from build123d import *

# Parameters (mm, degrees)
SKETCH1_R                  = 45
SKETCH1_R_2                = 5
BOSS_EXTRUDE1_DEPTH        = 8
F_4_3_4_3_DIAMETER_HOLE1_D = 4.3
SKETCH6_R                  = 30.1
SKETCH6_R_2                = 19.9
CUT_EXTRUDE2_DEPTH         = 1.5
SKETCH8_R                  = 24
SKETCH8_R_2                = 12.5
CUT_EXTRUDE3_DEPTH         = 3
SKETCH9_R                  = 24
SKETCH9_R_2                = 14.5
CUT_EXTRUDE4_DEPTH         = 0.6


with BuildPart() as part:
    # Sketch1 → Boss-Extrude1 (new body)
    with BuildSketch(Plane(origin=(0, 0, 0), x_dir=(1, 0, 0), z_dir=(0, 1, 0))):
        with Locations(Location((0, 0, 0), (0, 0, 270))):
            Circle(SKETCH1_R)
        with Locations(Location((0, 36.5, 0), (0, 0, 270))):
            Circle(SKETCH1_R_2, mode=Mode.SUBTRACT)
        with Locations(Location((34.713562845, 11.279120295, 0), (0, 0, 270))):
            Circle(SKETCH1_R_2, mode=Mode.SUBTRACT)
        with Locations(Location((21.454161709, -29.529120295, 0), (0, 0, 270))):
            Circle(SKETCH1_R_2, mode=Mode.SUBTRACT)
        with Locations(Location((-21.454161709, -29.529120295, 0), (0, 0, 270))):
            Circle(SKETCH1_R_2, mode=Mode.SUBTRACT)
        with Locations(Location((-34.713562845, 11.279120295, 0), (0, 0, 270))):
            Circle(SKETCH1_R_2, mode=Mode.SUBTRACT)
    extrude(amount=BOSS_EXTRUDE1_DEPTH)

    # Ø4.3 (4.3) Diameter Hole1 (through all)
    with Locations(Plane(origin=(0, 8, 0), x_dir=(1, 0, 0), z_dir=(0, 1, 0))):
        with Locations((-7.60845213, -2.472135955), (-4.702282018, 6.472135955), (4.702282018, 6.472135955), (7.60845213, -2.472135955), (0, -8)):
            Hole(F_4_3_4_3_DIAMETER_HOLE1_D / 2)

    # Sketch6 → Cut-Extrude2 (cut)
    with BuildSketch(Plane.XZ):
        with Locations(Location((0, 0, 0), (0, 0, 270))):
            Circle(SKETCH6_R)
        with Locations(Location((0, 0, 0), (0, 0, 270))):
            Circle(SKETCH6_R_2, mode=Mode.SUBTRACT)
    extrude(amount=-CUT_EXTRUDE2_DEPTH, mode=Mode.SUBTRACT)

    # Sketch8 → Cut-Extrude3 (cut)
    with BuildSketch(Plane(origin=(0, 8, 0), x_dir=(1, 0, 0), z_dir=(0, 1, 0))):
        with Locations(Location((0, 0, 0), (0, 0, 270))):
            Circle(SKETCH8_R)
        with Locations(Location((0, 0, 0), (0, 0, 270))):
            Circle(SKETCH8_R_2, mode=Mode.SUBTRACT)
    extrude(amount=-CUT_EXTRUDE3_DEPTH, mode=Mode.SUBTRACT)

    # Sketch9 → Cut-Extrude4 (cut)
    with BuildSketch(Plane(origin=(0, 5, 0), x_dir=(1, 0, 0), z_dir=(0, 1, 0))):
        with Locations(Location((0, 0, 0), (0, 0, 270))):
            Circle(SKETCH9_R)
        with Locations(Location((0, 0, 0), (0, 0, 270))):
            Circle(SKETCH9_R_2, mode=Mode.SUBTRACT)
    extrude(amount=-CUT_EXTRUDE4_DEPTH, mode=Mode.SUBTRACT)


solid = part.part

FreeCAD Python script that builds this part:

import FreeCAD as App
import Part
import Sketcher
Q = App.Units.Quantity

doc = App.newDocument("Part")
body = doc.addObject("PartDesign::Body", "Body")

sketch1 = doc.addObject("Sketcher::SketchObject", "Sketch")
body.addObject(sketch1)
sketch1.AttachmentSupport = (doc.XZ_Plane, [""])
sketch1.MapMode = "FlatFace"
sketch1.addGeometry([
    Part.Circle(App.Vector(0, 0, 0), App.Vector(0, 0, 1), 45),
    Part.Circle(App.Vector(-34.713563, -11.27912, 0), App.Vector(0, 0, 1), 5),
    Part.Circle(App.Vector(0, -36.5, 0), App.Vector(0, 0, 1), 5),
    Part.Circle(App.Vector(-21.454162, 29.52912, 0), App.Vector(0, 0, 1), 5),
    Part.Circle(App.Vector(34.713563, -11.27912, 0), App.Vector(0, 0, 1), 5),
    Part.Circle(App.Vector(21.454162, 29.52912, 0), App.Vector(0, 0, 1), 5),
], False)
sketch1.addConstraint([
    Sketcher.Constraint("Coincident", 0, 3, -1, 1),
    Sketcher.Constraint("Equal", 1, 2),
    Sketcher.Constraint("Equal", 2, 3),
    Sketcher.Constraint("Equal", 3, 4),
    Sketcher.Constraint("Equal", 4, 5),
    Sketcher.Constraint("Symmetric", 1, 3, 4, 3, -2),
    Sketcher.Constraint("Symmetric", 3, 3, 5, 3, -2),
    Sketcher.Constraint("PointOnObject", 2, 3, -2),
    Sketcher.Constraint("Diameter", 0, Q("90 mm")),
    Sketcher.Constraint("Diameter", 1, Q("10 mm")),
    Sketcher.Constraint("DistanceY", 2, 3, -1, 1, Q("36.5 mm")),
    Sketcher.Constraint("DistanceX", 1, 3, 3, 3, Q("13.259401 mm")),
    Sketcher.Constraint("DistanceY", 1, 3, -1, 1, Q("11.27912 mm")),
    Sketcher.Constraint("DistanceX", 3, 3, -1, 1, Q("21.454162 mm")),
    Sketcher.Constraint("DistanceY", -1, 1, 3, 3, Q("29.52912 mm")),
])
pad1 = doc.addObject("PartDesign::Pad", "Pad")
body.addObject(pad1)
pad1.Profile = sketch1
pad1.Length = 8
pad1.Reversed = True

sketch2 = doc.addObject("Sketcher::SketchObject", "Sketch001")
body.addObject(sketch2)
sketch2.AttachmentSupport = (doc.XZ_Plane, [""])
sketch2.MapMode = "FlatFace"
sketch2.AttachmentOffset = App.Placement(App.Vector(0, 0, -8), App.Rotation())
sketch2.addGeometry([
    Part.Circle(App.Vector(-7.608452, 2.472136, 0), App.Vector(0, 0, 1), 2.15),
    Part.Circle(App.Vector(-4.702282, -6.472136, 0), App.Vector(0, 0, 1), 2.15),
    Part.Circle(App.Vector(4.702282, -6.472136, 0), App.Vector(0, 0, 1), 2.15),
    Part.Circle(App.Vector(7.608452, 2.472136, 0), App.Vector(0, 0, 1), 2.15),
    Part.Circle(App.Vector(0, 8, 0), App.Vector(0, 0, 1), 2.15),
], False)
sketch2.addConstraint([
    Sketcher.Constraint("Equal", 0, 1),
    Sketcher.Constraint("Equal", 1, 2),
    Sketcher.Constraint("Equal", 2, 3),
    Sketcher.Constraint("Equal", 3, 4),
    Sketcher.Constraint("Symmetric", 1, 3, 2, 3, -2),
    Sketcher.Constraint("Symmetric", 0, 3, 3, 3, -2),
    Sketcher.Constraint("PointOnObject", 4, 3, -2),
    Sketcher.Constraint("Diameter", 0, Q("4.3 mm")),
    Sketcher.Constraint("DistanceY", -1, 1, 4, 3, Q("8 mm")),
    Sketcher.Constraint("DistanceX", 0, 3, 1, 3, Q("2.90617 mm")),
    Sketcher.Constraint("DistanceY", 1, 3, 0, 3, Q("8.944272 mm")),
    Sketcher.Constraint("DistanceX", 0, 3, -1, 1, Q("7.608452 mm")),
    Sketcher.Constraint("DistanceY", -1, 1, 0, 3, Q("2.472136 mm")),
])
doc.recompute()
hole = doc.addObject("PartDesign::Hole", "Hole")
body.addObject(hole)
hole.Profile = sketch2
hole.ThreadType = "None"
hole.Diameter = 4.3
hole.DepthType = "ThroughAll"
hole.Reversed = True

sketch3 = doc.addObject("Sketcher::SketchObject", "Sketch002")
body.addObject(sketch3)
sketch3.AttachmentSupport = (doc.XZ_Plane, [""])
sketch3.MapMode = "FlatFace"
sketch3.addGeometry([
    Part.Circle(App.Vector(0, 0, 0), App.Vector(0, 0, 1), 30.1),
    Part.Circle(App.Vector(0, 0, 0), App.Vector(0, 0, 1), 19.9),
], False)
sketch3.addConstraint([
    Sketcher.Constraint("Coincident", 0, 3, -1, 1),
    Sketcher.Constraint("Coincident", 1, 3, -1, 1),
    Sketcher.Constraint("Diameter", 0, Q("60.2 mm")),
    Sketcher.Constraint("Diameter", 1, Q("39.8 mm")),
])
pocket1 = doc.addObject("PartDesign::Pocket", "Pocket")
body.addObject(pocket1)
pocket1.Profile = sketch3
pocket1.Length = 1.5

sketch4 = doc.addObject("Sketcher::SketchObject", "Sketch003")
body.addObject(sketch4)
sketch4.AttachmentSupport = (doc.XZ_Plane, [""])
sketch4.MapMode = "FlatFace"
sketch4.AttachmentOffset = App.Placement(App.Vector(0, 0, -8), App.Rotation())
sketch4.addGeometry([
    Part.Circle(App.Vector(0, 0, 0), App.Vector(0, 0, 1), 24),
    Part.Circle(App.Vector(0, 0, 0), App.Vector(0, 0, 1), 12.5),
], False)
sketch4.addConstraint([
    Sketcher.Constraint("Coincident", 0, 3, -1, 1),
    Sketcher.Constraint("Coincident", 1, 3, -1, 1),
    Sketcher.Constraint("Diameter", 0, Q("48 mm")),
    Sketcher.Constraint("Diameter", 1, Q("25 mm")),
])
pocket2 = doc.addObject("PartDesign::Pocket", "Pocket001")
body.addObject(pocket2)
pocket2.Profile = sketch4
pocket2.Length = 3
pocket2.Reversed = True

sketch5 = doc.addObject("Sketcher::SketchObject", "Sketch004")
body.addObject(sketch5)
sketch5.AttachmentSupport = (doc.XZ_Plane, [""])
sketch5.MapMode = "FlatFace"
sketch5.AttachmentOffset = App.Placement(App.Vector(0, 0, -5), App.Rotation())
sketch5.addGeometry([
    Part.Circle(App.Vector(0, 0, 0), App.Vector(0, 0, 1), 24),
    Part.Circle(App.Vector(0, 0, 0), App.Vector(0, 0, 1), 14.5),
], False)
sketch5.addConstraint([
    Sketcher.Constraint("Coincident", 0, 3, -1, 1),
    Sketcher.Constraint("Coincident", 1, 3, -1, 1),
    Sketcher.Constraint("Diameter", 0, Q("48 mm")),
    Sketcher.Constraint("Diameter", 1, Q("29 mm")),
])
pocket3 = doc.addObject("PartDesign::Pocket", "Pocket002")
body.addObject(pocket3)
pocket3.Profile = sketch5
pocket3.Length = 0.6
pocket3.Reversed = True

doc.recompute()
